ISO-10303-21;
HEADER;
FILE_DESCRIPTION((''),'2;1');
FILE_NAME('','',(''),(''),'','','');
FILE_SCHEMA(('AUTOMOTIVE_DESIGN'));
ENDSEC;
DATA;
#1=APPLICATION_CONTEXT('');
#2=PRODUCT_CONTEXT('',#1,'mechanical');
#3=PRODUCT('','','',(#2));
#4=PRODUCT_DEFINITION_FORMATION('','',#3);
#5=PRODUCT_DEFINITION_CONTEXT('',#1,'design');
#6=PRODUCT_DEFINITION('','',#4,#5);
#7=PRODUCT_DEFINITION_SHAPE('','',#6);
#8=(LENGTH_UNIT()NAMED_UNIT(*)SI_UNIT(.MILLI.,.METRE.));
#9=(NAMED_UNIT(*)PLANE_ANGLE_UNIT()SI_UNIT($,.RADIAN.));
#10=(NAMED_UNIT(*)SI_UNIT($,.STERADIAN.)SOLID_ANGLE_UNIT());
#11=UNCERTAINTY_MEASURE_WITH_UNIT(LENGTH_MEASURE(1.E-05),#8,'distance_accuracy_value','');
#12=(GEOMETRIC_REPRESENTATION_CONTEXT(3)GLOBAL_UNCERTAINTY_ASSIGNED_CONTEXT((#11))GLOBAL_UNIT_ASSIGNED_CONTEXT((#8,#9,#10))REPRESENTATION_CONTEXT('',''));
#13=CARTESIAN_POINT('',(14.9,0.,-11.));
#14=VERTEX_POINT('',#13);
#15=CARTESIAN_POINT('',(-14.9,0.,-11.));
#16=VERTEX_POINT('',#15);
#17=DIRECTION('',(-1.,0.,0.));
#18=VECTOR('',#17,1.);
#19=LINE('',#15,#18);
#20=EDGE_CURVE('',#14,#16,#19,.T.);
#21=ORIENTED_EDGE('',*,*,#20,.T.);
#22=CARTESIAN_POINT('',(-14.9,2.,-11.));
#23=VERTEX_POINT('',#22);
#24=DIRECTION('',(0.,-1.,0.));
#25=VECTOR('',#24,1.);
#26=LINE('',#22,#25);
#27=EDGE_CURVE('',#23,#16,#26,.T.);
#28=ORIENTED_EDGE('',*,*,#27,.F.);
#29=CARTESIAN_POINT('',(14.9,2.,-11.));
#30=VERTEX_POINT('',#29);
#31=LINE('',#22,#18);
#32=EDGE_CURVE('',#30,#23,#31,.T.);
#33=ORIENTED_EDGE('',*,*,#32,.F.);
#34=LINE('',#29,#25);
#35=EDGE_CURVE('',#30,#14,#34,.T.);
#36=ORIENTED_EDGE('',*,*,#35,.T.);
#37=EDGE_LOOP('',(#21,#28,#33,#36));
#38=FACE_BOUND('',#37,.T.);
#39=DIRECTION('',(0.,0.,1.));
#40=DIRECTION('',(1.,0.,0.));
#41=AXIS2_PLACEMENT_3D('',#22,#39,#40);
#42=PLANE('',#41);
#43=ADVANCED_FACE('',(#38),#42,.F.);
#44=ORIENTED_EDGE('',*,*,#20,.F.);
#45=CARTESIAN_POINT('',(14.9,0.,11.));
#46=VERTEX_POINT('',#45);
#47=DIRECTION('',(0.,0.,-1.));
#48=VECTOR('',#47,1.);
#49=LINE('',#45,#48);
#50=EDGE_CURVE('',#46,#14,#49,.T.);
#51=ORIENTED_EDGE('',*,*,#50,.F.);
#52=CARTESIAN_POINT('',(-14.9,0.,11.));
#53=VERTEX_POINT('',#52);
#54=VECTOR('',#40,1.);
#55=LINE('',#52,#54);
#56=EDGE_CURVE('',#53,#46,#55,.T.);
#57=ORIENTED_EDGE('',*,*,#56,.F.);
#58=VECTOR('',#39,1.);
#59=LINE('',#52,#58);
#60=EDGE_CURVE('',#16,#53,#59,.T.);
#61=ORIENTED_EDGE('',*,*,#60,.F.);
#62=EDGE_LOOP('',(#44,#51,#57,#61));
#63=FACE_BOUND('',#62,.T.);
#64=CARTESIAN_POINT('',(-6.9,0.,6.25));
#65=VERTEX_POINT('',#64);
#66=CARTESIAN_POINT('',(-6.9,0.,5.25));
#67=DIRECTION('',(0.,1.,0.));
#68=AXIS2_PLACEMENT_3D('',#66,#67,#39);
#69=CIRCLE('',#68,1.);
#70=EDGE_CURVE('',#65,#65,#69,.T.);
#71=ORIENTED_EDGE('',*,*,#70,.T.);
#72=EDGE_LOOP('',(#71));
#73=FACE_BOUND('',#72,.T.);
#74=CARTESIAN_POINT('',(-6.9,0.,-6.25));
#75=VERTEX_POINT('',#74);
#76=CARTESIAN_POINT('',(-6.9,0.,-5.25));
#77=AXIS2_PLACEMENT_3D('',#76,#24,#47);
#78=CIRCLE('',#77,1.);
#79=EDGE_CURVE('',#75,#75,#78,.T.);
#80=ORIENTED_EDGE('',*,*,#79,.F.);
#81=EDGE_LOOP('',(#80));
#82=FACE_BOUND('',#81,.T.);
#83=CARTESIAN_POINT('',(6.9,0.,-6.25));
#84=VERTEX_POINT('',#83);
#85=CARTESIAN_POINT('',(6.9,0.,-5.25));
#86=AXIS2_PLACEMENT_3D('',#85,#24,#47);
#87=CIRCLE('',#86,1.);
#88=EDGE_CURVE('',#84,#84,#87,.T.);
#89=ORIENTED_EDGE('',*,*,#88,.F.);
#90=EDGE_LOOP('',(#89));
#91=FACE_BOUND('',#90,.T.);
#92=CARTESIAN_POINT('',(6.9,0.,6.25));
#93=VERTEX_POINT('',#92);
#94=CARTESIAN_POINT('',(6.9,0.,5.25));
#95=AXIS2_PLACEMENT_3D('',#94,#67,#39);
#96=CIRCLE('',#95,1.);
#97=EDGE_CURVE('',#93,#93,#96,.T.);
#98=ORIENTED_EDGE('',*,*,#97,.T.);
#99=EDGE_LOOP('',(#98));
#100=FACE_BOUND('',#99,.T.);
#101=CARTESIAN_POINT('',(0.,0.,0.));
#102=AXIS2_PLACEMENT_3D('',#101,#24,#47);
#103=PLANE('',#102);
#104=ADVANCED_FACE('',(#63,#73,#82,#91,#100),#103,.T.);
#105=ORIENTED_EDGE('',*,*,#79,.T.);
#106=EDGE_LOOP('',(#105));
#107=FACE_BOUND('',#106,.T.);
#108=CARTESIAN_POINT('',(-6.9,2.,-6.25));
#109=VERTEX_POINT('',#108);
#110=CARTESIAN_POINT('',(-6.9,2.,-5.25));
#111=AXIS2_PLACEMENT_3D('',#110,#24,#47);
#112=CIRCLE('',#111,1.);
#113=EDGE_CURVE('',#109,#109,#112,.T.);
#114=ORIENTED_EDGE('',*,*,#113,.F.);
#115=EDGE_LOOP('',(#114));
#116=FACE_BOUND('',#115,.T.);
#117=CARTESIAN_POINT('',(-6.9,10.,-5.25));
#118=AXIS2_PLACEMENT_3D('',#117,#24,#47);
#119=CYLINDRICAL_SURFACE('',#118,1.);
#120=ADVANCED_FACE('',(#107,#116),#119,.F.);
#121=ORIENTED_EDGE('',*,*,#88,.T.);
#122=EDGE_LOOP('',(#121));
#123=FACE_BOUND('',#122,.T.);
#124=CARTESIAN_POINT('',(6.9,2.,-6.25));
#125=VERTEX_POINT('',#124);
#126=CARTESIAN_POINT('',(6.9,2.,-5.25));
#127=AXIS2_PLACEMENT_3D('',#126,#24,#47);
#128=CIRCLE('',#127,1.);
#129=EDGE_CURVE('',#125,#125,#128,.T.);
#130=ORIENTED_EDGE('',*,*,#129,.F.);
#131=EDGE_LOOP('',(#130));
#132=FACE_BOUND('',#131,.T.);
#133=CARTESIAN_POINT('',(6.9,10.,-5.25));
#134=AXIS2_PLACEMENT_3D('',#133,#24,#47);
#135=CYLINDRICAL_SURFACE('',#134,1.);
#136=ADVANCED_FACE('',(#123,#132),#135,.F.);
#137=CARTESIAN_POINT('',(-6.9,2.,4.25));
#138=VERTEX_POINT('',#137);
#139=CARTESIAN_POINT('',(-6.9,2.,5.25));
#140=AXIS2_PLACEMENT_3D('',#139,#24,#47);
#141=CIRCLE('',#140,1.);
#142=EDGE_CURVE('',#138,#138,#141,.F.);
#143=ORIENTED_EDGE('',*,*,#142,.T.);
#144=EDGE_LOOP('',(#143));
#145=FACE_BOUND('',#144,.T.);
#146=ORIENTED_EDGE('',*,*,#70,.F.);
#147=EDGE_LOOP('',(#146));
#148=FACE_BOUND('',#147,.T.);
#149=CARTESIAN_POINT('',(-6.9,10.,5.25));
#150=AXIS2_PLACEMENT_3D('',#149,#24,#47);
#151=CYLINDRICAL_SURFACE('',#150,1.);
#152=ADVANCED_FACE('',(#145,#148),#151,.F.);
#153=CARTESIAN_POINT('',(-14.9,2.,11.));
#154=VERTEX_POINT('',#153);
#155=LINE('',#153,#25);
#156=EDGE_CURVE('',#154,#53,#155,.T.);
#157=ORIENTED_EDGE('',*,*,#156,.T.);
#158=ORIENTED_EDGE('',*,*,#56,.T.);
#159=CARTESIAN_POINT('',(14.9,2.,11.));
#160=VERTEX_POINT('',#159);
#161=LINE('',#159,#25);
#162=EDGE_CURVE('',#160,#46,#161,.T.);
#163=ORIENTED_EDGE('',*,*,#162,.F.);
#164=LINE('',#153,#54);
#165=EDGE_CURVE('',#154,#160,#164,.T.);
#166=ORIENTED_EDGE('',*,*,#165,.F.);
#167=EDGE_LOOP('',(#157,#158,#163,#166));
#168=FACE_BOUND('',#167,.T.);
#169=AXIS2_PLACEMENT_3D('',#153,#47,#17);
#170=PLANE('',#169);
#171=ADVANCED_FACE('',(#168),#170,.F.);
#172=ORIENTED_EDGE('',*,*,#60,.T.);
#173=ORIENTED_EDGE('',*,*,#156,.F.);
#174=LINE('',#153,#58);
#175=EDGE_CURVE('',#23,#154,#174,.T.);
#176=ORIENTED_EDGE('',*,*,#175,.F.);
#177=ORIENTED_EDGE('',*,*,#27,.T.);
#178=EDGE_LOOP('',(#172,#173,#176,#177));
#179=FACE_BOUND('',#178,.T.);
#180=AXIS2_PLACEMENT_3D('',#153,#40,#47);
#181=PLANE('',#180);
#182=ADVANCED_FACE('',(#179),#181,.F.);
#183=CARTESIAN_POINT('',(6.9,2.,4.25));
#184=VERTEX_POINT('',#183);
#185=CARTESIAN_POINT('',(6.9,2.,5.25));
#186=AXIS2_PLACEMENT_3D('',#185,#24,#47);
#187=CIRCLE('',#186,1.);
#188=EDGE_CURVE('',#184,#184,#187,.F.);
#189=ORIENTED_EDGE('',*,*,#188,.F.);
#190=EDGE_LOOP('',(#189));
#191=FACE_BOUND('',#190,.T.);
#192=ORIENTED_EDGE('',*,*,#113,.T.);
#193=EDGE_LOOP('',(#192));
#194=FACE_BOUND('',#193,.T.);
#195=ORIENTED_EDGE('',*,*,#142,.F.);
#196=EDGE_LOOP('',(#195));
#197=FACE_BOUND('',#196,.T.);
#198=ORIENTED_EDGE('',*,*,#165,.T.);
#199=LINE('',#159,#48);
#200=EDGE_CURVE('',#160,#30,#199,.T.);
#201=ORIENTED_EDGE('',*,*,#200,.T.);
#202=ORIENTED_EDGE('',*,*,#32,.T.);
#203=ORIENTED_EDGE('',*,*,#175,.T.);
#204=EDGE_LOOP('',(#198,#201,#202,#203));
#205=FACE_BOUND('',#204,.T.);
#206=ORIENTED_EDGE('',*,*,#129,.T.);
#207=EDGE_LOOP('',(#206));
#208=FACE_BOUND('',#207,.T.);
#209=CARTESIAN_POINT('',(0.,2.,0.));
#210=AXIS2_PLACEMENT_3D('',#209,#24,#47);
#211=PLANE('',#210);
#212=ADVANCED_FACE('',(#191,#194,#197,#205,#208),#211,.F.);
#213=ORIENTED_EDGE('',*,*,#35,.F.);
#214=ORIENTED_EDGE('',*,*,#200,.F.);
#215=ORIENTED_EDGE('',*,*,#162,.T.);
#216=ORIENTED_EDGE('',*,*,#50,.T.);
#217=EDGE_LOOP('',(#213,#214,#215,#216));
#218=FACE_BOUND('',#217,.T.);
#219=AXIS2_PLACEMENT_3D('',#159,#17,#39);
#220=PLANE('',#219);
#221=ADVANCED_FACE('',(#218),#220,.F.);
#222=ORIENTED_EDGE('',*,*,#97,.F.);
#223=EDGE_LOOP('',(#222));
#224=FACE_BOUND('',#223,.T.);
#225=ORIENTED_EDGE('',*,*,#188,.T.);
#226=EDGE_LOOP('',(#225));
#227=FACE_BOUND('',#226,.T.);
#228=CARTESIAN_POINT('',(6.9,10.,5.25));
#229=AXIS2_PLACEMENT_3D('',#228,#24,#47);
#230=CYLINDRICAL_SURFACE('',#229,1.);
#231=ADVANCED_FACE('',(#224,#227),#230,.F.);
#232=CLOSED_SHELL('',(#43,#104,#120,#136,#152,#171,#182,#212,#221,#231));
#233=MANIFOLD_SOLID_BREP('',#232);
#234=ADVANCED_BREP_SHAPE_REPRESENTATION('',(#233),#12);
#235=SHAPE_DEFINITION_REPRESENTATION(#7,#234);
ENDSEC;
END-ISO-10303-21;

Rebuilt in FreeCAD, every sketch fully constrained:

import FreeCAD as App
import Part
import Sketcher


def add_polygon(sketch, points):
    """Adds a closed chain of lines whose ends are joined by coincident constraints."""
    first, n = sketch.GeometryCount, len(points)
    for a, b in zip(points, points[1:] + points[:1]):
        sketch.addGeometry(Part.LineSegment(App.Vector(*a, 0), App.Vector(*b, 0)), False)
    for i in range(n):
        sketch.addConstraint(Sketcher.Constraint("Coincident", first + i, 2, first + (i + 1) % n, 1))

doc = App.newDocument("Part")
params = doc.addObject("Spreadsheet::Sheet", "Params")
for row, (alias, value) in enumerate([
    ("sketch1_height", "22 mm"),
    ("sketch1_width", "29.8 mm"),
    ("pad1_length", "2 mm"),
    ("sketch2_diameter", "2 mm"),
    ("pocket1_length", "10 mm"),
], start=1):
    params.set(f"A{row}", alias)
    params.set(f"B{row}", "=" + value)
    params.setAlias(f"B{row}", alias)

body = doc.addObject("PartDesign::Body", "Body")

sketch1 = body.newObject("Sketcher::SketchObject", "Sketch")
sketch1.AttachmentSupport = (doc.getObject("XZ_Plane"), [""])
sketch1.MapMode = "FlatFace"
add_polygon(sketch1, [(-15, -11), (-15, 11), (15, 11), (15, -11)])
sketch1.addConstraint([
    Sketcher.Constraint("Vertical", 0),
    Sketcher.Constraint("Horizontal", 1),
    Sketcher.Constraint("Vertical", 2),
    Sketcher.Constraint("Horizontal", 3),
    Sketcher.Constraint("Symmetric", 0, 2, 2, 2, -1, 1),
    Sketcher.Constraint("DistanceY", 0, 1, 0, 2, 22.0),
    Sketcher.Constraint("DistanceX", 1, 1, 1, 2, 29.8),
])
sketch1.setExpression("Constraints[9]", "Params.sketch1_height")
sketch1.setExpression("Constraints[10]", "Params.sketch1_width")
pad1 = body.newObject("PartDesign::Pad", "Pad")
pad1.Profile = sketch1
pad1.setExpression("Length", "Params.pad1_length")
pad1.Reversed = True

sketch2 = body.newObject("Sketcher::SketchObject", "Sketch001")
sketch2.AttachmentSupport = (doc.getObject("XZ_Plane"), [""])
sketch2.MapMode = "FlatFace"
sketch2.addGeometry([
    Part.Circle(App.Vector(6.9, -5.2, 0), App.Vector(0, 0, 1), 1),
    Part.Circle(App.Vector(-6.9, -5.2, 0), App.Vector(0, 0, 1), 1),
], False)
sketch2.addConstraint([
    Sketcher.Constraint("Equal", 0, 1),
    Sketcher.Constraint("Symmetric", 0, 3, 1, 3, -2),
    Sketcher.Constraint("Diameter", 0, 2.0),
    Sketcher.Constraint("DistanceX", -1, 1, 0, 3, 6.9),
    Sketcher.Constraint("DistanceY", 0, 3, -1, 1, 5.25),
])
sketch2.setExpression("Constraints[2]", "Params.sketch2_diameter")
pocket1 = body.newObject("PartDesign::Pocket", "Pocket")
pocket1.Profile = sketch2
pocket1.setExpression("Length", "Params.pocket1_length")
doc.recompute()

mirrored = body.newObject("PartDesign::Mirrored", "Mirrored")
mirrored.Originals = [pocket1]
mirrored.MirrorPlane = (doc.getObject("XY_Plane"), [""])
body.Tip = mirrored

doc.recompute()
